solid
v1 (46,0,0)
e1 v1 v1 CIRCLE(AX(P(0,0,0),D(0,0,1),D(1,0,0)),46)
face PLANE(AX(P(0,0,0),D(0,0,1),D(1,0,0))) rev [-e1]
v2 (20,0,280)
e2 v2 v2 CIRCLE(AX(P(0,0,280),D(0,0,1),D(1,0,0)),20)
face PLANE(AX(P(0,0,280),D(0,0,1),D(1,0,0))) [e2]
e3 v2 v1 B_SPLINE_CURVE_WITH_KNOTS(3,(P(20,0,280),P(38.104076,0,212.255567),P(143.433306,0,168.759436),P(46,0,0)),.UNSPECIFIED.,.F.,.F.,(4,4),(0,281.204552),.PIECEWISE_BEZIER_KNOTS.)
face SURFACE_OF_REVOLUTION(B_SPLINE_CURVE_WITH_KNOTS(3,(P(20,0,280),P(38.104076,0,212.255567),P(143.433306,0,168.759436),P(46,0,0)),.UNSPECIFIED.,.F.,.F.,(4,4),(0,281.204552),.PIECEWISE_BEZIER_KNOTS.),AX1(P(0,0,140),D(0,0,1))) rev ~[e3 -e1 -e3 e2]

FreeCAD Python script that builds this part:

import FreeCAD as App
import Part
import Sketcher

doc = App.newDocument("Part")
params = doc.addObject("Spreadsheet::Sheet", "Params")
for row, (alias, value) in enumerate([
    ("revolution_angle", "360 deg"),
], start=1):
    params.set(f"A{row}", alias)
    params.set(f"B{row}", "=" + value)
    params.setAlias(f"B{row}", alias)

body = doc.addObject("PartDesign::Body", "Body")

# Sketch on XZ plane
sketch1 = body.newObject("Sketcher::SketchObject", "Sketch")
sketch1.AttachmentSupport = (doc.getObject("XZ_Plane"), [""])
sketch1.MapMode = "FlatFace"
sketch1.addGeometry(Part.LineSegment(App.Vector(0, 280, 0), App.Vector(0, 0, 0)), False)
sketch1.addGeometry(Part.LineSegment(App.Vector(0, 0, 0), App.Vector(46, 0, 0)), False)
sketch1.addGeometry(Part.BSplineCurve([App.Vector(20, 280, 0), App.Vector(38.104076, 212.255567, 0), App.Vector(143.433306, 168.759436, 0), App.Vector(46, 0, 0)], [4, 4], [0, 281.204552], False, 3, [1, 1, 1, 1], False), False)
sketch1.addGeometry(Part.LineSegment(App.Vector(20, 280, 0), App.Vector(0, 280, 0)), False)
sketch1.addConstraint(Sketcher.Constraint("Block", 2))
sketch1.addConstraint(Sketcher.Constraint("Coincident", 0, 2, 1, 1))
sketch1.addConstraint(Sketcher.Constraint("Coincident", 1, 2, 2, 2))
sketch1.addConstraint(Sketcher.Constraint("Coincident", 2, 1, 3, 1))
sketch1.addConstraint(Sketcher.Constraint("Coincident", 3, 2, 0, 1))
sketch1.addConstraint(Sketcher.Constraint("Vertical", 0))
sketch1.addConstraint(Sketcher.Constraint("Horizontal", 1))
sketch1.addConstraint(Sketcher.Constraint("Horizontal", 3))
sketch1.addConstraint(Sketcher.Constraint("PointOnObject", 3, 2, -2))
revolution = body.newObject("PartDesign::Revolution", "Revolution")
revolution.Profile = sketch1
revolution.ReferenceAxis = (sketch1, ["V_Axis"])
revolution.setExpression("Angle", "Params.revolution_angle")

doc.recompute()
